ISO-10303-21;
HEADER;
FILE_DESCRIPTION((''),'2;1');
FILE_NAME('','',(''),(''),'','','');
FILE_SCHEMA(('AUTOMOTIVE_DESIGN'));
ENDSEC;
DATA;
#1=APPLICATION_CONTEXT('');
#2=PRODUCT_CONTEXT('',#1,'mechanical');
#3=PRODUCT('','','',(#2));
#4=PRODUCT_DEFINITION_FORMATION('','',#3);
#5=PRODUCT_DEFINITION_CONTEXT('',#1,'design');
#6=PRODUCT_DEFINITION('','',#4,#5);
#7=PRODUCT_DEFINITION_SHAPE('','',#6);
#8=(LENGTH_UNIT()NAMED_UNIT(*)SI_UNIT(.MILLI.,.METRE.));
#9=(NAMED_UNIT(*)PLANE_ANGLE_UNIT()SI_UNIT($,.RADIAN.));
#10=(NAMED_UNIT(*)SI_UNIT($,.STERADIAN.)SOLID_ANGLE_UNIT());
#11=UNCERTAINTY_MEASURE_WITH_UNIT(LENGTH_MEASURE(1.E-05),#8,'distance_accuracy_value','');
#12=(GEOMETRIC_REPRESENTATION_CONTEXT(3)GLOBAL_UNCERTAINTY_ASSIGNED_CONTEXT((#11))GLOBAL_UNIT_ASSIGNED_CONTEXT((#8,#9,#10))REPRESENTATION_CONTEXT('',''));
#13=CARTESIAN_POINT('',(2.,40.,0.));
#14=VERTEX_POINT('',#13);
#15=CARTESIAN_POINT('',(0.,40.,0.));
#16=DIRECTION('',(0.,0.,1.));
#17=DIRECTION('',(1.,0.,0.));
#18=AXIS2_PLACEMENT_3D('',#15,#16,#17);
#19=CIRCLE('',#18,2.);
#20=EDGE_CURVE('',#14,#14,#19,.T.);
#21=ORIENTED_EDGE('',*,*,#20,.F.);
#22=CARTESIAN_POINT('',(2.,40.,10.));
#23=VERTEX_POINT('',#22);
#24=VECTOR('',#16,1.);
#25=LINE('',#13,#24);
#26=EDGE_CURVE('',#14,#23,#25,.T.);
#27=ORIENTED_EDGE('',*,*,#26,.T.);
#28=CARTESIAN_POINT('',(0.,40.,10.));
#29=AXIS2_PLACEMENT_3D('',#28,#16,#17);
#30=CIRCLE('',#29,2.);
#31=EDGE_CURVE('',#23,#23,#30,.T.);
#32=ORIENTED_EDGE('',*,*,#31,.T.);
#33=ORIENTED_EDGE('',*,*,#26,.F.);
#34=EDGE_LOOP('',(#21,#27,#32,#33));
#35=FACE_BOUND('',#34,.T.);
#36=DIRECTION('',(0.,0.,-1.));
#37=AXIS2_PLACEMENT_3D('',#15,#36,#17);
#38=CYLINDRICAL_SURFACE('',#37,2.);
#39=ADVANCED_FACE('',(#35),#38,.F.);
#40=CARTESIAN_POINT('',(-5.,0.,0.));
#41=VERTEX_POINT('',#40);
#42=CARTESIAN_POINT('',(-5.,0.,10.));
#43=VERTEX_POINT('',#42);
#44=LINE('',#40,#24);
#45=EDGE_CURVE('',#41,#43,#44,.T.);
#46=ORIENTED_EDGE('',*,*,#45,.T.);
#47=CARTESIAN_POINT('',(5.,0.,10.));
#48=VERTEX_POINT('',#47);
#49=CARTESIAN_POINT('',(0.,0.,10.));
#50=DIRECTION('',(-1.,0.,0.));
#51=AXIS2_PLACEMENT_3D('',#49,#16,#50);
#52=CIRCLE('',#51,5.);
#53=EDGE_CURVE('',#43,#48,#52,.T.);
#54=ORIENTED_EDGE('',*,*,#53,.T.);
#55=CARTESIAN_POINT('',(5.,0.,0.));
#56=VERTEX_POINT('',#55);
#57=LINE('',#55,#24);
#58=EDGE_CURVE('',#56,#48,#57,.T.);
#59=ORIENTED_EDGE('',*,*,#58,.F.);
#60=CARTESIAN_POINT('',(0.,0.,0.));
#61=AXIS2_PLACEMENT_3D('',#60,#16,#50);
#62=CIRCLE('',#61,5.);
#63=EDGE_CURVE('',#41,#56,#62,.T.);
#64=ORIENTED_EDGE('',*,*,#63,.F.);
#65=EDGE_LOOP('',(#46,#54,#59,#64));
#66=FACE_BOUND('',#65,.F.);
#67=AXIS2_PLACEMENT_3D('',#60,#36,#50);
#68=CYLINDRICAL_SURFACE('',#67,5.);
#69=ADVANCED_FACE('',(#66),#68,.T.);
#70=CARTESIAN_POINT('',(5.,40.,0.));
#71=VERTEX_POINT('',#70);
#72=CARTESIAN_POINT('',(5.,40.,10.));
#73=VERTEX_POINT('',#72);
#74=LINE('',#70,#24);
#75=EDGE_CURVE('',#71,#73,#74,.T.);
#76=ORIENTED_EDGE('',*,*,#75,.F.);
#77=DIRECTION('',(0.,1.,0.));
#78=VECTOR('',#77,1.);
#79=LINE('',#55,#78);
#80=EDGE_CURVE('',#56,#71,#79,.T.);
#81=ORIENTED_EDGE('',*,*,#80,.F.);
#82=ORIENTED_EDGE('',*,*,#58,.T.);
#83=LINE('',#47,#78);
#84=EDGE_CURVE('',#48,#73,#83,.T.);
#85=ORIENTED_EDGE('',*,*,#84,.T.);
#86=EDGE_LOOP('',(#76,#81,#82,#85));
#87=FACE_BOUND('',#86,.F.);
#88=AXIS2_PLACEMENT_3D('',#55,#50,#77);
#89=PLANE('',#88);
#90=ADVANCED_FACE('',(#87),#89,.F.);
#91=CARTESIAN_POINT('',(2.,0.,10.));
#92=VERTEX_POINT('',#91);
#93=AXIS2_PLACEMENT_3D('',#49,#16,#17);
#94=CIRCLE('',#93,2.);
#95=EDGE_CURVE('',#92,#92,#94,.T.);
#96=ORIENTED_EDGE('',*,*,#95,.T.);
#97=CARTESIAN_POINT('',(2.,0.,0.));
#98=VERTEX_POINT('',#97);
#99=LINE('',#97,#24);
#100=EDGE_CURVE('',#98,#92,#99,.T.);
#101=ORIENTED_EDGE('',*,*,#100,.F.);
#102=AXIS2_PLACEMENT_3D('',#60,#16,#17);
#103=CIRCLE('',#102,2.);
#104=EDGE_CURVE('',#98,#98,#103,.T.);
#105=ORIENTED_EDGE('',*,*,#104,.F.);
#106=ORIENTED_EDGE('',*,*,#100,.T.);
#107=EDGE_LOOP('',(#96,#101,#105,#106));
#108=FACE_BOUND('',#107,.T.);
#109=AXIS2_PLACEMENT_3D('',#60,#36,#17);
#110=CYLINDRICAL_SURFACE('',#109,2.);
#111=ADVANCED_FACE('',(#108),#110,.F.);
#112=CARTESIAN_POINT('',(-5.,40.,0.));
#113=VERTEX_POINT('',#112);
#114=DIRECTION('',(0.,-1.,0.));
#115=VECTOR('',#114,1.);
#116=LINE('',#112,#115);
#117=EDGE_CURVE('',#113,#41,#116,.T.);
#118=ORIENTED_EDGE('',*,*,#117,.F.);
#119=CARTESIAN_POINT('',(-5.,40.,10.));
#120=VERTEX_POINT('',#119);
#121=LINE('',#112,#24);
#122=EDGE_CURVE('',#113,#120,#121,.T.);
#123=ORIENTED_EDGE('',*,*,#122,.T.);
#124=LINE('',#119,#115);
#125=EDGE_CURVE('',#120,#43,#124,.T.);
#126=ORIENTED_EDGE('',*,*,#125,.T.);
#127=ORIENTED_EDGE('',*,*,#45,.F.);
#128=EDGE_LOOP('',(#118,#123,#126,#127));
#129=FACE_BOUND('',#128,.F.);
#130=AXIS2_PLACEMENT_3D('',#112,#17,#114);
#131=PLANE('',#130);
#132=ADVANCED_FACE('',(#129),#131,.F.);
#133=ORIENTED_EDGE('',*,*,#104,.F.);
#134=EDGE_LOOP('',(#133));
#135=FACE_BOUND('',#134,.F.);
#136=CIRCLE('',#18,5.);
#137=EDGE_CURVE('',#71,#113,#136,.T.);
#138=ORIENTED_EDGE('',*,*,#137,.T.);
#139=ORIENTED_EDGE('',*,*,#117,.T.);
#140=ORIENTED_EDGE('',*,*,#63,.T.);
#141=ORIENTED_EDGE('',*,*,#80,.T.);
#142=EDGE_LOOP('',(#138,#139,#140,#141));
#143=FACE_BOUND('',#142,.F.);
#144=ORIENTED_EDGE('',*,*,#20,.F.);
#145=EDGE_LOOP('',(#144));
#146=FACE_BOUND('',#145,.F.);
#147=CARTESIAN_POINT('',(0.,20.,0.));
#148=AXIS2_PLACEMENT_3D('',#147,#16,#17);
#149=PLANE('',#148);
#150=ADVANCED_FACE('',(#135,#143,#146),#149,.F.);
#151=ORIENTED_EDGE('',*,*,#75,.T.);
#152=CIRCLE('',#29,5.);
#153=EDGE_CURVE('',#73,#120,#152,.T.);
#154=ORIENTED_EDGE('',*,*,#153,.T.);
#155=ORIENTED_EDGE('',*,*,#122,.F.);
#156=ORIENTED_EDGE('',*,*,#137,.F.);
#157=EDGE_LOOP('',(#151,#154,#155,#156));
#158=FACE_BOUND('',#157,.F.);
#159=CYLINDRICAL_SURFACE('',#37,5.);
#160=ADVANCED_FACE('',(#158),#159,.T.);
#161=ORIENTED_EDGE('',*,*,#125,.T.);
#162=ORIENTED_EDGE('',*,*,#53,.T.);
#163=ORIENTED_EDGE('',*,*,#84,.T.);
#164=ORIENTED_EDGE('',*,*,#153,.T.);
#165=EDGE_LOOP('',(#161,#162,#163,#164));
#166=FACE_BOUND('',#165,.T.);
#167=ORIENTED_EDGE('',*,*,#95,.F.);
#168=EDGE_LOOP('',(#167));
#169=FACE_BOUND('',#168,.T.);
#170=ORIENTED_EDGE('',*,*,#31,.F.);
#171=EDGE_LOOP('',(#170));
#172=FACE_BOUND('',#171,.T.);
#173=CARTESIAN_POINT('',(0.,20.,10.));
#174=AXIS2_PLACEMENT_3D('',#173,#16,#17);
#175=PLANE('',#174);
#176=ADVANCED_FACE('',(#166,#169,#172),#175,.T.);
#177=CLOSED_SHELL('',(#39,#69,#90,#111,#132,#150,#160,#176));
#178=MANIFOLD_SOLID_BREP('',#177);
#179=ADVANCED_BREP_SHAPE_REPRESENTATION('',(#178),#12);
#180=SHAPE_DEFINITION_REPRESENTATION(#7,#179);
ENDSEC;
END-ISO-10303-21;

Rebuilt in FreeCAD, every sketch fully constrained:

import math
import FreeCAD as App
import Part
import Sketcher
from FreeCAD import Vector

doc = App.newDocument("Part")
body = doc.addObject("PartDesign::Body", "Body")

sketch1 = doc.addObject("Sketcher::SketchObject", "Sketch")
body.addObject(sketch1)
sketch1.AttachmentSupport = (doc.XY_Plane, [""])
sketch1.MapMode = "FlatFace"
sketch1.addGeometry([
    Part.LineSegment(Vector(-5, 40, 0), Vector(-5, 0, 0)),
    Part.ArcOfCircle(Part.Circle(Vector(0, 0, 0), Vector(0, 0, 1), 5), math.radians(180), math.radians(360)),
    Part.LineSegment(Vector(5, 0, 0), Vector(5, 40, 0)),
    Part.ArcOfCircle(Part.Circle(Vector(0, 40, 0), Vector(0, 0, 1), 5), math.radians(0), math.radians(180)),
    Part.Circle(Vector(0, 0, 0), Vector(0, 0, 1), 2),
    Part.Circle(Vector(0, 40, 0), Vector(0, 0, 1), 2),
], False)
sketch1.addConstraint([
    Sketcher.Constraint("Tangent", 0, 2, 1, 1),
    Sketcher.Constraint("Tangent", 1, 2, 2, 1),
    Sketcher.Constraint("Tangent", 2, 2, 3, 1),
    Sketcher.Constraint("Tangent", 3, 2, 0, 1),
    Sketcher.Constraint("Vertical", 0),
    Sketcher.Constraint("Vertical", 2),
    Sketcher.Constraint("Coincident", 1, 3, -1, 1),
    Sketcher.Constraint("Coincident", 4, 3, -1, 1),
    Sketcher.Constraint("Coincident", 5, 3, 3, 3),
    Sketcher.Constraint("Equal", 4, 5),
    Sketcher.Constraint("Diameter", 4, 4.0),
    Sketcher.Constraint("Radius", 1, 5.0),
    Sketcher.Constraint("DistanceY", 0, 2, 0, 1, 40.0),
])
pad1 = doc.addObject("PartDesign::Pad", "Pad")
body.addObject(pad1)
pad1.Profile = sketch1
pad1.Length = 10

doc.recompute()
